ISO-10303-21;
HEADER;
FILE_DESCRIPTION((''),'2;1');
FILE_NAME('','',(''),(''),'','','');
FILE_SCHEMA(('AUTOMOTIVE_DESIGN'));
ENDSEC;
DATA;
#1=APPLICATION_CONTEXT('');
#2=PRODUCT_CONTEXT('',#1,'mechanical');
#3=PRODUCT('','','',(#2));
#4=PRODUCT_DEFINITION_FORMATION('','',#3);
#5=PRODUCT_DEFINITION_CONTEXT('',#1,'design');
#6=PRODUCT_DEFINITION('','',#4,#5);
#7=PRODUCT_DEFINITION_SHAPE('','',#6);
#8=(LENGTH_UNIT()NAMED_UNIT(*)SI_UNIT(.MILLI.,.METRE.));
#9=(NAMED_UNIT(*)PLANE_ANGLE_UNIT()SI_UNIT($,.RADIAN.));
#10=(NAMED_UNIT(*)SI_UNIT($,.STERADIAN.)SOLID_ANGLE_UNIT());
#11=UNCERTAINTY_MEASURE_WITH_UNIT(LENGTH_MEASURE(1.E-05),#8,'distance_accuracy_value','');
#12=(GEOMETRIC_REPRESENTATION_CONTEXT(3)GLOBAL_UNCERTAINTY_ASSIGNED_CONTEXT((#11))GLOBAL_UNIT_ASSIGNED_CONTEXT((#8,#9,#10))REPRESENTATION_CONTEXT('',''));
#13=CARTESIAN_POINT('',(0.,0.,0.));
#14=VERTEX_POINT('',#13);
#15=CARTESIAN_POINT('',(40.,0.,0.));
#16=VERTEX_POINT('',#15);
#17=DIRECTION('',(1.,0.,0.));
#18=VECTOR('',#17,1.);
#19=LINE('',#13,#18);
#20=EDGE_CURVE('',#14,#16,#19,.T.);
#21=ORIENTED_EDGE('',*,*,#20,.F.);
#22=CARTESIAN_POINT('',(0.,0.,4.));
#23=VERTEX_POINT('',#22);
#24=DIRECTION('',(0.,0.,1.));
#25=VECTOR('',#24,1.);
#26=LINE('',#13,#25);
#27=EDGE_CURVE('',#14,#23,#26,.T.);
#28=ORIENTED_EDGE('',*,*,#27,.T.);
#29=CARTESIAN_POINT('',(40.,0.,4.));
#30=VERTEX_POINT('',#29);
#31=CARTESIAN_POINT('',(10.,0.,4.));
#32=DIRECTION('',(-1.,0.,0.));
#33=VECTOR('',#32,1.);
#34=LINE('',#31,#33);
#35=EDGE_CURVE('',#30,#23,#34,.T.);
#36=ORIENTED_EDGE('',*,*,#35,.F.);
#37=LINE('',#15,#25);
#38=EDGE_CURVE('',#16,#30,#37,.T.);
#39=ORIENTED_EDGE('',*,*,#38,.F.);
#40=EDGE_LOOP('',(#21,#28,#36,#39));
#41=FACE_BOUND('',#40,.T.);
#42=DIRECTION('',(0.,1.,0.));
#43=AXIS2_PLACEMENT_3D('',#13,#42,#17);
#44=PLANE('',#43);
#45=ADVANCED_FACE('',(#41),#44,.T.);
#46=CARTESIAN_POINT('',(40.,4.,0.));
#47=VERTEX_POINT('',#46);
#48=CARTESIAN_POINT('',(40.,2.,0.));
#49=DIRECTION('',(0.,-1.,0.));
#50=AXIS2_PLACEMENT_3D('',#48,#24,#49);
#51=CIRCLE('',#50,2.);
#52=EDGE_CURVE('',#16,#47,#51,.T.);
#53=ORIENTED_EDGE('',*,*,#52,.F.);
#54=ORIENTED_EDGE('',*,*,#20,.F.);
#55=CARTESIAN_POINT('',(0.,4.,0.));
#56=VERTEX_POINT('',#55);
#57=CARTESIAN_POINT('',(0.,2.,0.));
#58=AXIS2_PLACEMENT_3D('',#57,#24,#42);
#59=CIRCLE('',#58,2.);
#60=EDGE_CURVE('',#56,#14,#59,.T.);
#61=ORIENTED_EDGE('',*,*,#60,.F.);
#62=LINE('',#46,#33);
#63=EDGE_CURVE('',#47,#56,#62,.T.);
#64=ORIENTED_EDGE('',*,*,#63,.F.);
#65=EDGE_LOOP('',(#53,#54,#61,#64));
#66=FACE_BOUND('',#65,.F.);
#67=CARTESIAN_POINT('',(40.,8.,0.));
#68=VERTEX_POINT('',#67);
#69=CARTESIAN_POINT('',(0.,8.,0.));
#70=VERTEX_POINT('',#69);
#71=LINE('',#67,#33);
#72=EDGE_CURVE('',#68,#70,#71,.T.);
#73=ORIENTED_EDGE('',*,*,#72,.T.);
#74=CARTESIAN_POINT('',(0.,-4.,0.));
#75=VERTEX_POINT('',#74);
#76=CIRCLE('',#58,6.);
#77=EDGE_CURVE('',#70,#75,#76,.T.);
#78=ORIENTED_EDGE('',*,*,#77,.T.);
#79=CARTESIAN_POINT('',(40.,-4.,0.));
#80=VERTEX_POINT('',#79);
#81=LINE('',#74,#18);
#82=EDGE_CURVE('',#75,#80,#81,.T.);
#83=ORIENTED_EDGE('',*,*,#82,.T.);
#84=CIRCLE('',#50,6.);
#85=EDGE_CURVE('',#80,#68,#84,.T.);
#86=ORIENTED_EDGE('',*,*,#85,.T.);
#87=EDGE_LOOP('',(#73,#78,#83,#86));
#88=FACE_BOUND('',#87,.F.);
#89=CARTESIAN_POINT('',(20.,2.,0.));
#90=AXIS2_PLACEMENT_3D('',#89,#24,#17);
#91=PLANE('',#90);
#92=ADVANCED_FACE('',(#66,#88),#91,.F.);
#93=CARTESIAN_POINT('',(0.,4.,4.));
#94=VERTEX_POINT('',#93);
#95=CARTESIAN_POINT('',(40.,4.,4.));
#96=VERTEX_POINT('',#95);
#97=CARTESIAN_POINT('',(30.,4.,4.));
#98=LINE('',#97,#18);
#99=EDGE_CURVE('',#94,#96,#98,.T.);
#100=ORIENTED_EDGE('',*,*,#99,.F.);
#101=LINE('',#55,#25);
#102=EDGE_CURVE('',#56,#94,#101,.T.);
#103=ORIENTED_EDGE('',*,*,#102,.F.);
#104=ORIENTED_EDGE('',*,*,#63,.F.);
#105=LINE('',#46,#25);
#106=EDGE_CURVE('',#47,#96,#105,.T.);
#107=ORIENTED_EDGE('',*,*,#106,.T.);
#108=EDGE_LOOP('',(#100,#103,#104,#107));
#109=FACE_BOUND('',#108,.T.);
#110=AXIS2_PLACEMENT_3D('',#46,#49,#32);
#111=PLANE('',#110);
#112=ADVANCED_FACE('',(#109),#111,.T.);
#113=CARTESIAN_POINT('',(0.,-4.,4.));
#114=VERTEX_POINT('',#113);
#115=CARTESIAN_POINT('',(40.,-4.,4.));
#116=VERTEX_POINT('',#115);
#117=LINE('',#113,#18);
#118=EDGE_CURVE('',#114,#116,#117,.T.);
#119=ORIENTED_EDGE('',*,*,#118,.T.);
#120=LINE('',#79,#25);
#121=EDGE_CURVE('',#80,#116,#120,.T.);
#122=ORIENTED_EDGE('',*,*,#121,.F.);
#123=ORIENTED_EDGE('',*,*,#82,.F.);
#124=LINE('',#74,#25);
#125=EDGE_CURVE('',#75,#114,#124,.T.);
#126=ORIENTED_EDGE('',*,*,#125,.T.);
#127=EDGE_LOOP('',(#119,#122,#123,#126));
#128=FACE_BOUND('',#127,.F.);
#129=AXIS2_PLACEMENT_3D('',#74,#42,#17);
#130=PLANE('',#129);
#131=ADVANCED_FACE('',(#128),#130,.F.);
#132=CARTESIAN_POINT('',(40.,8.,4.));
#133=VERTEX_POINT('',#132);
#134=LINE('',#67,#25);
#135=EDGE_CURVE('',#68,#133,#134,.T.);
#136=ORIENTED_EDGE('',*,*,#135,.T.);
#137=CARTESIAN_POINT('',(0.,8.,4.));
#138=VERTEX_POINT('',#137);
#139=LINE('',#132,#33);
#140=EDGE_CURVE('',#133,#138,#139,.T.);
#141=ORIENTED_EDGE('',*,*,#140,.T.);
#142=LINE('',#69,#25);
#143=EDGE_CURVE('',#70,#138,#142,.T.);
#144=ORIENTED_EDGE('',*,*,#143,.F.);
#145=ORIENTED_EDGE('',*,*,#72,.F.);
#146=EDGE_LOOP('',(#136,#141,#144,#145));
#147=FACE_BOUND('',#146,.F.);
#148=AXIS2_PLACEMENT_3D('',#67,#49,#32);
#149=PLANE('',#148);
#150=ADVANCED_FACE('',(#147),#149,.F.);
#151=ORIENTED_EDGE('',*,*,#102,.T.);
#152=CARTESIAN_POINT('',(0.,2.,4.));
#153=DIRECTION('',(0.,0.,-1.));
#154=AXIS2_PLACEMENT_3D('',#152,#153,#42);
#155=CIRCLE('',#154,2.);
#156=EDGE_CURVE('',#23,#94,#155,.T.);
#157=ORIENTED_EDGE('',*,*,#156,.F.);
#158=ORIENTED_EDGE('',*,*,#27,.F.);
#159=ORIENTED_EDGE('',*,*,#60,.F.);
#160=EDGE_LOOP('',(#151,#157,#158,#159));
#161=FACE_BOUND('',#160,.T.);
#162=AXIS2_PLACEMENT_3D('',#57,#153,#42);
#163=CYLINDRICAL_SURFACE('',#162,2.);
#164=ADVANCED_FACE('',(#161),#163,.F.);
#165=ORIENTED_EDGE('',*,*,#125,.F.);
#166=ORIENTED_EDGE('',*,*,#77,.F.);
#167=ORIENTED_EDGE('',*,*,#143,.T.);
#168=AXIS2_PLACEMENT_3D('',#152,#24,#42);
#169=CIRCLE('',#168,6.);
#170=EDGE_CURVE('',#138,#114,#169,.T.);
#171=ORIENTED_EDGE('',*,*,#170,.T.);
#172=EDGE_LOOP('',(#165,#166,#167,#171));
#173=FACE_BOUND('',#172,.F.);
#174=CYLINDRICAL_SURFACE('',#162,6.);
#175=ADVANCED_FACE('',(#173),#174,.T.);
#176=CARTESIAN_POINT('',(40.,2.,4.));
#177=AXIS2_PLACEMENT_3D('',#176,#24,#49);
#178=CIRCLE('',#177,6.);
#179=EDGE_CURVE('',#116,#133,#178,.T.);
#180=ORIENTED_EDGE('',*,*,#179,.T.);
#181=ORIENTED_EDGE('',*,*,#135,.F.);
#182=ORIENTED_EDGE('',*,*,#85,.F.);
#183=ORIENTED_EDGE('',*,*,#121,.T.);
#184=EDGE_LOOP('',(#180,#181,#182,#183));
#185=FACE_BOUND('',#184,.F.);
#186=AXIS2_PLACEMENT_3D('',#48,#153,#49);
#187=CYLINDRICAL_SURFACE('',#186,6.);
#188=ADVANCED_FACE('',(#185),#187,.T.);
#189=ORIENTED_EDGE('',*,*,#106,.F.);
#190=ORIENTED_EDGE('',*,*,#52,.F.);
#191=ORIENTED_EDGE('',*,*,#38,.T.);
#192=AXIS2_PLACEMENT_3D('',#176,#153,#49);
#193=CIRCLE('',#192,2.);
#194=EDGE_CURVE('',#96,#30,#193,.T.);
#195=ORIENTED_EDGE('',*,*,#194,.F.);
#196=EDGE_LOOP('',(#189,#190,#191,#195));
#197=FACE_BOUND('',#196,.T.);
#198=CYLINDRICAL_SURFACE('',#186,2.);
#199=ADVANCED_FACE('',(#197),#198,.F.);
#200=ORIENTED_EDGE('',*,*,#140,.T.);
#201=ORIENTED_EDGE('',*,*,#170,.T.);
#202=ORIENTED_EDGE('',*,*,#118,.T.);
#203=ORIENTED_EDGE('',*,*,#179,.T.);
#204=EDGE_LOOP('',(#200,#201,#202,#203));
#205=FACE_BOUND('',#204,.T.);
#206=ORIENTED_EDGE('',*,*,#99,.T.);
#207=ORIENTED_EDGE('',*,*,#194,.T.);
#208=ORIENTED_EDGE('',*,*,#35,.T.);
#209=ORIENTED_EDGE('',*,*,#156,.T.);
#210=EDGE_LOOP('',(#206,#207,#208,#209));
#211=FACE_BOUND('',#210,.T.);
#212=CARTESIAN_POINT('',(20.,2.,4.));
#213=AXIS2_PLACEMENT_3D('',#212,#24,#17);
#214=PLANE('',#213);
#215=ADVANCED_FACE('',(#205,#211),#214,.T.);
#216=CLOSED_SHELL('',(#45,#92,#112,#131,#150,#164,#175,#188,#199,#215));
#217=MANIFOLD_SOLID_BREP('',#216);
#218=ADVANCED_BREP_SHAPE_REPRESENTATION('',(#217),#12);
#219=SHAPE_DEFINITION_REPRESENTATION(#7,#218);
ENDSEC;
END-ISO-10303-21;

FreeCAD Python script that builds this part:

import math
import FreeCAD as App
import Part
import Sketcher
from FreeCAD import Vector
Q = App.Units.Quantity

doc = App.newDocument("Part")
body = doc.addObject("PartDesign::Body", "Body")

# Sketch on XY plane
sketch1 = body.newObject("Sketcher::SketchObject", "Sketch")
sketch1.AttachmentSupport = (doc.getObject("XY_Plane"), [""])
sketch1.MapMode = "FlatFace"
sketch1.addGeometry([
    Part.LineSegment(Vector(40, 8, 0), Vector(0, 8, 0)),
    Part.ArcOfCircle(Part.Circle(Vector(0, 2, 0), Vector(0, 0, 1), 6), math.radians(90), math.radians(270)),
    Part.LineSegment(Vector(0, -4, 0), Vector(40, -4, 0)),
    Part.ArcOfCircle(Part.Circle(Vector(40, 2, 0), Vector(0, 0, 1), 6), math.radians(-90), math.radians(90)),
], False)
sketch1.addConstraint([
    Sketcher.Constraint("Tangent", 0, 2, 1, 1),
    Sketcher.Constraint("Tangent", 1, 2, 2, 1),
    Sketcher.Constraint("Tangent", 2, 2, 3, 1),
    Sketcher.Constraint("Tangent", 3, 2, 0, 1),
    Sketcher.Constraint("Horizontal", 0),
    Sketcher.Constraint("Horizontal", 2),
    Sketcher.Constraint("PointOnObject", 1, 3, -2),
    Sketcher.Constraint("Radius", 1, Q("6 mm")),
    Sketcher.Constraint("DistanceX", 0, 2, 0, 1, Q("40 mm")),
    Sketcher.Constraint("DistanceY", -1, 1, 1, 3, Q("2 mm")),
])
pad1 = body.newObject("PartDesign::Pad", "Pad")
pad1.Profile = sketch1
pad1.Length = 4

# Sketch on XY plane
sketch2 = body.newObject("Sketcher::SketchObject", "Sketch001")
sketch2.AttachmentSupport = (doc.getObject("XY_Plane"), [""])
sketch2.MapMode = "FlatFace"
sketch2.addGeometry([
    Part.ArcOfCircle(Part.Circle(Vector(0, 2, 0), Vector(0, 0, 1), 2), math.radians(90), math.radians(270)),
    Part.LineSegment(Vector(0, 0, 0), Vector(40, 0, 0)),
    Part.ArcOfCircle(Part.Circle(Vector(40, 2, 0), Vector(0, 0, 1), 2), math.radians(-90), math.radians(90)),
    Part.LineSegment(Vector(40, 4, 0), Vector(0, 4, 0)),
], False)
sketch2.addConstraint([
    Sketcher.Constraint("Tangent", 0, 2, 1, 1),
    Sketcher.Constraint("Tangent", 1, 2, 2, 1),
    Sketcher.Constraint("Tangent", 2, 2, 3, 1),
    Sketcher.Constraint("Tangent", 3, 2, 0, 1),
    Sketcher.Constraint("Horizontal", 1),
    Sketcher.Constraint("Horizontal", 3),
    Sketcher.Constraint("Coincident", 0, 2, -1, 1),
    Sketcher.Constraint("Radius", 0, Q("2 mm")),
    Sketcher.Constraint("DistanceX", 1, 1, 1, 2, Q("40 mm")),
])
pocket1 = body.newObject("PartDesign::Pocket", "Pocket")
pocket1.Profile = sketch2
pocket1.Length = 25
pocket1.Reversed = True

doc.recompute()
